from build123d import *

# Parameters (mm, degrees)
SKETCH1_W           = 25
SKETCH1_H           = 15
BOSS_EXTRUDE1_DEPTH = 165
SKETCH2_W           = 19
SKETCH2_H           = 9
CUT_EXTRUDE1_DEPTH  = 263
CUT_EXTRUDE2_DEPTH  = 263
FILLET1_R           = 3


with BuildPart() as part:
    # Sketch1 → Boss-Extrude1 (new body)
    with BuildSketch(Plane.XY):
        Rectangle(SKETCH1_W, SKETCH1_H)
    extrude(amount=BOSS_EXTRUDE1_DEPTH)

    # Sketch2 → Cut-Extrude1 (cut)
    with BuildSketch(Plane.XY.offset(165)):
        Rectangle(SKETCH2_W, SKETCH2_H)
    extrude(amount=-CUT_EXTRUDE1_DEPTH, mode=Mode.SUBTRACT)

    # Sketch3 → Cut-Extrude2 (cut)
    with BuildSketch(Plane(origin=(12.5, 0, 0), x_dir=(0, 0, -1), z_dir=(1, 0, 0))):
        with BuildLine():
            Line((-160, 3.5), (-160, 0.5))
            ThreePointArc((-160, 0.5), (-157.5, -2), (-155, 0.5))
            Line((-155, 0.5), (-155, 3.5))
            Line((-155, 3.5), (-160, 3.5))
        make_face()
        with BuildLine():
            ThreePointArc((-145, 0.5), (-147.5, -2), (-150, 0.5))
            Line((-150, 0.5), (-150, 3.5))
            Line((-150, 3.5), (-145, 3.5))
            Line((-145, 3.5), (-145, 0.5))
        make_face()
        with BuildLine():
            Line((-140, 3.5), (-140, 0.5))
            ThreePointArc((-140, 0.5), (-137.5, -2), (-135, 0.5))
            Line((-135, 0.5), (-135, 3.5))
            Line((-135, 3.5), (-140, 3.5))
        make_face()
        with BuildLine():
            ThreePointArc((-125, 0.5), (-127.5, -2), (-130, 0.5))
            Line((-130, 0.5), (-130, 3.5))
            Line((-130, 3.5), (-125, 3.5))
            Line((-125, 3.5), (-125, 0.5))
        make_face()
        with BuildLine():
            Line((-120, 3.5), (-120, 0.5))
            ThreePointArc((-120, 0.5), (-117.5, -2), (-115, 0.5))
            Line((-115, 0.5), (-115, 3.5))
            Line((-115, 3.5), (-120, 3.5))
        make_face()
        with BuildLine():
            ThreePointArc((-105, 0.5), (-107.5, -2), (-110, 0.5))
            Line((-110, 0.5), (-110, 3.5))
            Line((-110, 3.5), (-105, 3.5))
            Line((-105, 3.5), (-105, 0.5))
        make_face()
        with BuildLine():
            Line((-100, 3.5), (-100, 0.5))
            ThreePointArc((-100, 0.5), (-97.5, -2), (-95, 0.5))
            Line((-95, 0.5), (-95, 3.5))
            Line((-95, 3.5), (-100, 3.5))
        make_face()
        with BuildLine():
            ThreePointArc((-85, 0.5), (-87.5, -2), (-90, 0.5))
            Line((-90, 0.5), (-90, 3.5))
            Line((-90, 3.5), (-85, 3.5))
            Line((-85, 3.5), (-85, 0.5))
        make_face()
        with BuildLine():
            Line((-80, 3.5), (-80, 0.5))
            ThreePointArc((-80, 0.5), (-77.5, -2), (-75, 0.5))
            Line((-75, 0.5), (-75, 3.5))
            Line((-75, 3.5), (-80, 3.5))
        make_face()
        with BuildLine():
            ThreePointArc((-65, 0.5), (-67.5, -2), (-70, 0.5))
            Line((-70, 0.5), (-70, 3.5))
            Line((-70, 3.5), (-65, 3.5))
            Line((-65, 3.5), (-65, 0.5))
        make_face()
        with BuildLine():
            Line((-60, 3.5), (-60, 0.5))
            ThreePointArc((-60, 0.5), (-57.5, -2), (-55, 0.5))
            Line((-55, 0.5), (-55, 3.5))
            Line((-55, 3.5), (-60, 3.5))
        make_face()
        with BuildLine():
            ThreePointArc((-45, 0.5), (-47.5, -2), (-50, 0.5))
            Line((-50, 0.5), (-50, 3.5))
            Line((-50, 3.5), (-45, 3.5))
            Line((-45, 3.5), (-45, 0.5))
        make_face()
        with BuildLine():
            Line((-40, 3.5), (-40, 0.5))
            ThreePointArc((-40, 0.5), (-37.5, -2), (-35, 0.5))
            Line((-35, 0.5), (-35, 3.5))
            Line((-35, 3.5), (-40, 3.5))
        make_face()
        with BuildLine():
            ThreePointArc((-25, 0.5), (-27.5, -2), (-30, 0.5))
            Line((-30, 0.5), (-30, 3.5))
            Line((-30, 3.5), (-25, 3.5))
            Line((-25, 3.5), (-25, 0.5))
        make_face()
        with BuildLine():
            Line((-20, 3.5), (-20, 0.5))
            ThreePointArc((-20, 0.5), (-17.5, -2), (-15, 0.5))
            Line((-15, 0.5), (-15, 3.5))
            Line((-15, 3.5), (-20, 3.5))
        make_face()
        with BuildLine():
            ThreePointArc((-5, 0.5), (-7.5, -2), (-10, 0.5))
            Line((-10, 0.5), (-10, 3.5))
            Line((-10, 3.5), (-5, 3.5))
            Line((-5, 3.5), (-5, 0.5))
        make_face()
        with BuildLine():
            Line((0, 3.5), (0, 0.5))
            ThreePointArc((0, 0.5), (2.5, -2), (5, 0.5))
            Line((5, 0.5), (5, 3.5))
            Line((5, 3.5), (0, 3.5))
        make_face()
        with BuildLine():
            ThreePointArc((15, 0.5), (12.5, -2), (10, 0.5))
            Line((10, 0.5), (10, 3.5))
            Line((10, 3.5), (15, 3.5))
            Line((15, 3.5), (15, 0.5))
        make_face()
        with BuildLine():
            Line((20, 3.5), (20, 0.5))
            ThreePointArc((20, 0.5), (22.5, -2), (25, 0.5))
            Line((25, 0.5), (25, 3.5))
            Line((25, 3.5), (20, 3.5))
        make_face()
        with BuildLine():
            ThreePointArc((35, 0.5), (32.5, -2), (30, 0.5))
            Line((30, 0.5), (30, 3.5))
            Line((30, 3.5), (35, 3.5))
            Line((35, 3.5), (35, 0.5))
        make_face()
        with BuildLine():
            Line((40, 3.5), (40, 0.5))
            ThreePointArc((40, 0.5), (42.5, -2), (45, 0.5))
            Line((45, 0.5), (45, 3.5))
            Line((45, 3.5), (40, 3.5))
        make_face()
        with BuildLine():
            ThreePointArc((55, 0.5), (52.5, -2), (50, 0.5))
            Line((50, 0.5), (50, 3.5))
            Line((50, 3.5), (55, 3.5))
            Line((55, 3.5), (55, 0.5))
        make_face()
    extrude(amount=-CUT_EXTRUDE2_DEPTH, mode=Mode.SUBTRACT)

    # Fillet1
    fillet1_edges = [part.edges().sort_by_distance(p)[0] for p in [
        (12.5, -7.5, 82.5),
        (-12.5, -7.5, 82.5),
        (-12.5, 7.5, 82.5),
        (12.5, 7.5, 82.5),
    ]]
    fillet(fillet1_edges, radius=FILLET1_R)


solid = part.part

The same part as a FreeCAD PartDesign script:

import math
import FreeCAD as App
import Part
import Sketcher


def edges_at(feature, points):
    """Names of the edges that pass closest to the given points."""
    edges = feature.Shape.Edges
    near = lambda p: min(range(len(edges)), key=lambda i: edges[i].distToShape(Part.Vertex(*p))[0])
    return sorted({f"Edge{near(p) + 1}" for p in points})


def add_polygon(sketch, points):
    """Adds a closed chain of lines whose ends are joined by coincident constraints."""
    first, n = sketch.GeometryCount, len(points)
    for a, b in zip(points, points[1:] + points[:1]):
        sketch.addGeometry(Part.LineSegment(App.Vector(*a, 0), App.Vector(*b, 0)), False)
    for i in range(n):
        sketch.addConstraint(Sketcher.Constraint("Coincident", first + i, 2, first + (i + 1) % n, 1))

doc = App.newDocument("Part")
body = doc.addObject("PartDesign::Body", "Body")

sketch1 = body.newObject("Sketcher::SketchObject", "Sketch")
sketch1.AttachmentSupport = (doc.getObject("XY_Plane"), [""])
sketch1.MapMode = "FlatFace"
add_polygon(sketch1, [(-12, 8), (-12, -8), (12, -8), (12, 8)])
sketch1.addConstraint(Sketcher.Constraint("Vertical", 0))
sketch1.addConstraint(Sketcher.Constraint("Horizontal", 1))
sketch1.addConstraint(Sketcher.Constraint("Vertical", 2))
sketch1.addConstraint(Sketcher.Constraint("Horizontal", 3))
sketch1.addConstraint(Sketcher.Constraint("Symmetric", 0, 2, 2, 2, -1, 1))
sketch1.addConstraint(Sketcher.Constraint("DistanceX", 1, 1, 1, 2, 25.0))
sketch1.addConstraint(Sketcher.Constraint("DistanceY", 0, 2, 0, 1, 15.0))
pad1 = body.newObject("PartDesign::Pad", "Pad")
pad1.Profile = sketch1
pad1.Length = 165

sketch2 = body.newObject("Sketcher::SketchObject", "Sketch001")
sketch2.AttachmentSupport = (doc.getObject("XY_Plane"), [""])
sketch2.MapMode = "FlatFace"
sketch2.AttachmentOffset = App.Placement(App.Vector(0, 0, 165), App.Rotation())
add_polygon(sketch2, [(-10, 4), (-10, -4), (10, -4), (10, 4)])
sketch2.addConstraint(Sketcher.Constraint("Vertical", 0))
sketch2.addConstraint(Sketcher.Constraint("Horizontal", 1))
sketch2.addConstraint(Sketcher.Constraint("Vertical", 2))
sketch2.addConstraint(Sketcher.Constraint("Horizontal", 3))
sketch2.addConstraint(Sketcher.Constraint("Symmetric", 0, 2, 2, 2, -1, 1))
sketch2.addConstraint(Sketcher.Constraint("DistanceX", 1, 1, 1, 2, 19.0))
sketch2.addConstraint(Sketcher.Constraint("DistanceY", 0, 2, 0, 1, 9.0))
pocket1 = body.newObject("PartDesign::Pocket", "Pocket")
pocket1.Profile = sketch2
pocket1.Length = 263

sketch3 = body.newObject("Sketcher::SketchObject", "Sketch002")
sketch3.AttachmentSupport = (doc.getObject("YZ_Plane"), [""])
sketch3.MapMode = "FlatFace"
sketch3.AttachmentOffset = App.Placement(App.Vector(0, 0, 12.5), App.Rotation())
sketch3.addGeometry(Part.LineSegment(App.Vector(3.5, 160, 0), App.Vector(0.5, 160, 0)), False)
sketch3.addGeometry(Part.ArcOfCircle(Part.Circle(App.Vector(0.5, 157.5, 0), App.Vector(0, 0, 1), 2.5), math.radians(90), math.radians(270)), False)
sketch3.addGeometry(Part.LineSegment(App.Vector(0.5, 155, 0), App.Vector(3.5, 155, 0)), False)
sketch3.addGeometry(Part.LineSegment(App.Vector(3.5, 155, 0), App.Vector(3.5, 160, 0)), False)
sketch3.addGeometry(Part.ArcOfCircle(Part.Circle(App.Vector(0.5, 147.5, 0), App.Vector(0, 0, 1), 2.5), math.radians(90), math.radians(270)), False)
sketch3.addGeometry(Part.LineSegment(App.Vector(0.5, 145, 0), App.Vector(3.5, 145, 0)), False)
sketch3.addGeometry(Part.LineSegment(App.Vector(3.5, 145, 0), App.Vector(3.5, 150, 0)), False)
sketch3.addGeometry(Part.LineSegment(App.Vector(3.5, 150, 0), App.Vector(0.5, 150, 0)), False)
sketch3.addGeometry(Part.LineSegment(App.Vector(3.5, 140, 0), App.Vector(0.5, 140, 0)), False)
sketch3.addGeometry(Part.ArcOfCircle(Part.Circle(App.Vector(0.5, 137.5, 0), App.Vector(0, 0, 1), 2.5), math.radians(90), math.radians(270)), False)
sketch3.addGeometry(Part.LineSegment(App.Vector(0.5, 135, 0), App.Vector(3.5, 135, 0)), False)
sketch3.addGeometry(Part.LineSegment(App.Vector(3.5, 135, 0), App.Vector(3.5, 140, 0)), False)
sketch3.addGeometry(Part.ArcOfCircle(Part.Circle(App.Vector(0.5, 127.5, 0), App.Vector(0, 0, 1), 2.5), math.radians(90), math.radians(270)), False)
sketch3.addGeometry(Part.LineSegment(App.Vector(0.5, 125, 0), App.Vector(3.5, 125, 0)), False)
sketch3.addGeometry(Part.LineSegment(App.Vector(3.5, 125, 0), App.Vector(3.5, 130, 0)), False)
sketch3.addGeometry(Part.LineSegment(App.Vector(3.5, 130, 0), App.Vector(0.5, 130, 0)), False)
sketch3.addGeometry(Part.LineSegment(App.Vector(3.5, 120, 0), App.Vector(0.5, 120, 0)), False)
sketch3.addGeometry(Part.ArcOfCircle(Part.Circle(App.Vector(0.5, 117.5, 0), App.Vector(0, 0, 1), 2.5), math.radians(90), math.radians(270)), False)
sketch3.addGeometry(Part.LineSegment(App.Vector(0.5, 115, 0), App.Vector(3.5, 115, 0)), False)
sketch3.addGeometry(Part.LineSegment(App.Vector(3.5, 115, 0), App.Vector(3.5, 120, 0)), False)
sketch3.addGeometry(Part.ArcOfCircle(Part.Circle(App.Vector(0.5, 107.5, 0), App.Vector(0, 0, 1), 2.5), math.radians(90), math.radians(270)), False)
sketch3.addGeometry(Part.LineSegment(App.Vector(0.5, 105, 0), App.Vector(3.5, 105, 0)), False)
sketch3.addGeometry(Part.LineSegment(App.Vector(3.5, 105, 0), App.Vector(3.5, 110, 0)), False)
sketch3.addGeometry(Part.LineSegment(App.Vector(3.5, 110, 0), App.Vector(0.5, 110, 0)), False)
sketch3.addGeometry(Part.LineSegment(App.Vector(3.5, 100, 0), App.Vector(0.5, 100, 0)), False)
sketch3.addGeometry(Part.ArcOfCircle(Part.Circle(App.Vector(0.5, 97.5, 0), App.Vector(0, 0, 1), 2.5), math.radians(90), math.radians(270)), False)
sketch3.addGeometry(Part.LineSegment(App.Vector(0.5, 95, 0), App.Vector(3.5, 95, 0)), False)
sketch3.addGeometry(Part.LineSegment(App.Vector(3.5, 95, 0), App.Vector(3.5, 100, 0)), False)
sketch3.addGeometry(Part.ArcOfCircle(Part.Circle(App.Vector(0.5, 87.5, 0), App.Vector(0, 0, 1), 2.5), math.radians(90), math.radians(270)), False)
sketch3.addGeometry(Part.LineSegment(App.Vector(0.5, 85, 0), App.Vector(3.5, 85, 0)), False)
sketch3.addGeometry(Part.LineSegment(App.Vector(3.5, 85, 0), App.Vector(3.5, 90, 0)), False)
sketch3.addGeometry(Part.LineSegment(App.Vector(3.5, 90, 0), App.Vector(0.5, 90, 0)), False)
sketch3.addGeometry(Part.LineSegment(App.Vector(3.5, 80, 0), App.Vector(0.5, 80, 0)), False)
sketch3.addGeometry(Part.ArcOfCircle(Part.Circle(App.Vector(0.5, 77.5, 0), App.Vector(0, 0, 1), 2.5), math.radians(90), math.radians(270)), False)
sketch3.addGeometry(Part.LineSegment(App.Vector(0.5, 75, 0), App.Vector(3.5, 75, 0)), False)
sketch3.addGeometry(Part.LineSegment(App.Vector(3.5, 75, 0), App.Vector(3.5, 80, 0)), False)
sketch3.addGeometry(Part.ArcOfCircle(Part.Circle(App.Vector(0.5, 67.5, 0), App.Vector(0, 0, 1), 2.5), math.radians(90), math.radians(270)), False)
sketch3.addGeometry(Part.LineSegment(App.Vector(0.5, 65, 0), App.Vector(3.5, 65, 0)), False)
sketch3.addGeometry(Part.LineSegment(App.Vector(3.5, 65, 0), App.Vector(3.5, 70, 0)), False)
sketch3.addGeometry(Part.LineSegment(App.Vector(3.5, 70, 0), App.Vector(0.5, 70, 0)), False)
sketch3.addGeometry(Part.LineSegment(App.Vector(3.5, 60, 0), App.Vector(0.5, 60, 0)), False)
sketch3.addGeometry(Part.ArcOfCircle(Part.Circle(App.Vector(0.5, 57.5, 0), App.Vector(0, 0, 1), 2.5), math.radians(90), math.radians(270)), False)
sketch3.addGeometry(Part.LineSegment(App.Vector(0.5, 55, 0), App.Vector(3.5, 55, 0)), False)
sketch3.addGeometry(Part.LineSegment(App.Vector(3.5, 55, 0), App.Vector(3.5, 60, 0)), False)
sketch3.addGeometry(Part.ArcOfCircle(Part.Circle(App.Vector(0.5, 47.5, 0), App.Vector(0, 0, 1), 2.5), math.radians(90), math.radians(270)), False)
sketch3.addGeometry(Part.LineSegment(App.Vector(0.5, 45, 0), App.Vector(3.5, 45, 0)), False)
sketch3.addGeometry(Part.LineSegment(App.Vector(3.5, 45, 0), App.Vector(3.5, 50, 0)), False)
sketch3.addGeometry(Part.LineSegment(App.Vector(3.5, 50, 0), App.Vector(0.5, 50, 0)), False)
sketch3.addGeometry(Part.LineSegment(App.Vector(3.5, 40, 0), App.Vector(0.5, 40, 0)), False)
sketch3.addGeometry(Part.ArcOfCircle(Part.Circle(App.Vector(0.5, 37.5, 0), App.Vector(0, 0, 1), 2.5), math.radians(90), math.radians(270)), False)
sketch3.addGeometry(Part.LineSegment(App.Vector(0.5, 35, 0), App.Vector(3.5, 35, 0)), False)
sketch3.addGeometry(Part.LineSegment(App.Vector(3.5, 35, 0), App.Vector(3.5, 40, 0)), False)
sketch3.addGeometry(Part.ArcOfCircle(Part.Circle(App.Vector(0.5, 27.5, 0), App.Vector(0, 0, 1), 2.5), math.radians(90), math.radians(270)), False)
sketch3.addGeometry(Part.LineSegment(App.Vector(0.5, 25, 0), App.Vector(3.5, 25, 0)), False)
sketch3.addGeometry(Part.LineSegment(App.Vector(3.5, 25, 0), App.Vector(3.5, 30, 0)), False)
sketch3.addGeometry(Part.LineSegment(App.Vector(3.5, 30, 0), App.Vector(0.5, 30, 0)), False)
sketch3.addGeometry(Part.LineSegment(App.Vector(3.5, 20, 0), App.Vector(0.5, 20, 0)), False)
sketch3.addGeometry(Part.ArcOfCircle(Part.Circle(App.Vector(0.5, 17.5, 0), App.Vector(0, 0, 1), 2.5), math.radians(90), math.radians(270)), False)
sketch3.addGeometry(Part.LineSegment(App.Vector(0.5, 15, 0), App.Vector(3.5, 15, 0)), False)
sketch3.addGeometry(Part.LineSegment(App.Vector(3.5, 15, 0), App.Vector(3.5, 20, 0)), False)
sketch3.addGeometry(Part.ArcOfCircle(Part.Circle(App.Vector(0.5, 7.5, 0), App.Vector(0, 0, 1), 2.5), math.radians(90), math.radians(270)), False)
sketch3.addGeometry(Part.LineSegment(App.Vector(0.5, 5, 0), App.Vector(3.5, 5, 0)), False)
sketch3.addGeometry(Part.LineSegment(App.Vector(3.5, 5, 0), App.Vector(3.5, 10, 0)), False)
sketch3.addGeometry(Part.LineSegment(App.Vector(3.5, 10, 0), App.Vector(0.5, 10, 0)), False)
sketch3.addGeometry(Part.LineSegment(App.Vector(3.5, 0, 0), App.Vector(0.5, 0, 0)), False)
sketch3.addGeometry(Part.ArcOfCircle(Part.Circle(App.Vector(0.5, -2.5, 0), App.Vector(0, 0, 1), 2.5), math.radians(90), math.radians(270)), False)
sketch3.addGeometry(Part.LineSegment(App.Vector(0.5, -5, 0), App.Vector(3.5, -5, 0)), False)
sketch3.addGeometry(Part.LineSegment(App.Vector(3.5, -5, 0), App.Vector(3.5, 0, 0)), False)
sketch3.addGeometry(Part.ArcOfCircle(Part.Circle(App.Vector(0.5, -12.5, 0), App.Vector(0, 0, 1), 2.5), math.radians(90), math.radians(270)), False)
sketch3.addGeometry(Part.LineSegment(App.Vector(0.5, -15, 0), App.Vector(3.5, -15, 0)), False)
sketch3.addGeometry(Part.LineSegment(App.Vector(3.5, -15, 0), App.Vector(3.5, -10, 0)), False)
sketch3.addGeometry(Part.LineSegment(App.Vector(3.5, -10, 0), App.Vector(0.5, -10, 0)), False)
sketch3.addGeometry(Part.LineSegment(App.Vector(3.5, -20, 0), App.Vector(0.5, -20, 0)), False)
sketch3.addGeometry(Part.ArcOfCircle(Part.Circle(App.Vector(0.5, -22.5, 0), App.Vector(0, 0, 1), 2.5), math.radians(90), math.radians(270)), False)
sketch3.addGeometry(Part.LineSegment(App.Vector(0.5, -25, 0), App.Vector(3.5, -25, 0)), False)
sketch3.addGeometry(Part.LineSegment(App.Vector(3.5, -25, 0), App.Vector(3.5, -20, 0)), False)
sketch3.addGeometry(Part.ArcOfCircle(Part.Circle(App.Vector(0.5, -32.5, 0), App.Vector(0, 0, 1), 2.5), math.radians(90), math.radians(270)), False)
sketch3.addGeometry(Part.LineSegment(App.Vector(0.5, -35, 0), App.Vector(3.5, -35, 0)), False)
sketch3.addGeometry(Part.LineSegment(App.Vector(3.5, -35, 0), App.Vector(3.5, -30, 0)), False)
sketch3.addGeometry(Part.LineSegment(App.Vector(3.5, -30, 0), App.Vector(0.5, -30, 0)), False)
sketch3.addGeometry(Part.LineSegment(App.Vector(3.5, -40, 0), App.Vector(0.5, -40, 0)), False)
sketch3.addGeometry(Part.ArcOfCircle(Part.Circle(App.Vector(0.5, -42.5, 0), App.Vector(0, 0, 1), 2.5), math.radians(90), math.radians(270)), False)
sketch3.addGeometry(Part.LineSegment(App.Vector(0.5, -45, 0), App.Vector(3.5, -45, 0)), False)
sketch3.addGeometry(Part.LineSegment(App.Vector(3.5, -45, 0), App.Vector(3.5, -40, 0)), False)
sketch3.addGeometry(Part.ArcOfCircle(Part.Circle(App.Vector(0.5, -52.5, 0), App.Vector(0, 0, 1), 2.5), math.radians(90), math.radians(270)), False)
sketch3.addGeometry(Part.LineSegment(App.Vector(0.5, -55, 0), App.Vector(3.5, -55, 0)), False)
sketch3.addGeometry(Part.LineSegment(App.Vector(3.5, -55, 0), App.Vector(3.5, -50, 0)), False)
sketch3.addGeometry(Part.LineSegment(App.Vector(3.5, -50, 0), App.Vector(0.5, -50, 0)), False)
sketch3.addConstraint(Sketcher.Constraint("Tangent", 0, 2, 1, 1))
sketch3.addConstraint(Sketcher.Constraint("Tangent", 1, 2, 2, 1))
sketch3.addConstraint(Sketcher.Constraint("Coincident", 2, 2, 3, 1))
sketch3.addConstraint(Sketcher.Constraint("Coincident", 3, 2, 0, 1))
sketch3.addConstraint(Sketcher.Constraint("Tangent", 4, 2, 5, 1))
sketch3.addConstraint(Sketcher.Constraint("Coincident", 5, 2, 6, 1))
sketch3.addConstraint(Sketcher.Constraint("Coincident", 6, 2, 7, 1))
sketch3.addConstraint(Sketcher.Constraint("Tangent", 7, 2, 4, 1))
sketch3.addConstraint(Sketcher.Constraint("Tangent", 8, 2, 9, 1))
sketch3.addConstraint(Sketcher.Constraint("Tangent", 9, 2, 10, 1))
sketch3.addConstraint(Sketcher.Constraint("Coincident", 10, 2, 11, 1))
sketch3.addConstraint(Sketcher.Constraint("Coincident", 11, 2, 8, 1))
sketch3.addConstraint(Sketcher.Constraint("Tangent", 12, 2, 13, 1))
sketch3.addConstraint(Sketcher.Constraint("Coincident", 13, 2, 14, 1))
sketch3.addConstraint(Sketcher.Constraint("Coincident", 14, 2, 15, 1))
sketch3.addConstraint(Sketcher.Constraint("Tangent", 15, 2, 12, 1))
sketch3.addConstraint(Sketcher.Constraint("Tangent", 16, 2, 17, 1))
sketch3.addConstraint(Sketcher.Constraint("Tangent", 17, 2, 18, 1))
sketch3.addConstraint(Sketcher.Constraint("Coincident", 18, 2, 19, 1))
sketch3.addConstraint(Sketcher.Constraint("Coincident", 19, 2, 16, 1))
sketch3.addConstraint(Sketcher.Constraint("Tangent", 20, 2, 21, 1))
sketch3.addConstraint(Sketcher.Constraint("Coincident", 21, 2, 22, 1))
sketch3.addConstraint(Sketcher.Constraint("Coincident", 22, 2, 23, 1))
sketch3.addConstraint(Sketcher.Constraint("Tangent", 23, 2, 20, 1))
sketch3.addConstraint(Sketcher.Constraint("Tangent", 24, 2, 25, 1))
sketch3.addConstraint(Sketcher.Constraint("Tangent", 25, 2, 26, 1))
sketch3.addConstraint(Sketcher.Constraint("Coincident", 26, 2, 27, 1))
sketch3.addConstraint(Sketcher.Constraint("Coincident", 27, 2, 24, 1))
sketch3.addConstraint(Sketcher.Constraint("Tangent", 28, 2, 29, 1))
sketch3.addConstraint(Sketcher.Constraint("Coincident", 29, 2, 30, 1))
sketch3.addConstraint(Sketcher.Constraint("Coincident", 30, 2, 31, 1))
sketch3.addConstraint(Sketcher.Constraint("Tangent", 31, 2, 28, 1))
sketch3.addConstraint(Sketcher.Constraint("Tangent", 32, 2, 33, 1))
sketch3.addConstraint(Sketcher.Constraint("Tangent", 33, 2, 34, 1))
sketch3.addConstraint(Sketcher.Constraint("Coincident", 34, 2, 35, 1))
sketch3.addConstraint(Sketcher.Constraint("Coincident", 35, 2, 32, 1))
sketch3.addConstraint(Sketcher.Constraint("Tangent", 36, 2, 37, 1))
sketch3.addConstraint(Sketcher.Constraint("Coincident", 37, 2, 38, 1))
sketch3.addConstraint(Sketcher.Constraint("Coincident", 38, 2, 39, 1))
sketch3.addConstraint(Sketcher.Constraint("Tangent", 39, 2, 36, 1))
sketch3.addConstraint(Sketcher.Constraint("Tangent", 40, 2, 41, 1))
sketch3.addConstraint(Sketcher.Constraint("Tangent", 41, 2, 42, 1))
sketch3.addConstraint(Sketcher.Constraint("Coincident", 42, 2, 43, 1))
sketch3.addConstraint(Sketcher.Constraint("Coincident", 43, 2, 40, 1))
sketch3.addConstraint(Sketcher.Constraint("Tangent", 44, 2, 45, 1))
sketch3.addConstraint(Sketcher.Constraint("Coincident", 45, 2, 46, 1))
sketch3.addConstraint(Sketcher.Constraint("Coincident", 46, 2, 47, 1))
sketch3.addConstraint(Sketcher.Constraint("Tangent", 47, 2, 44, 1))
sketch3.addConstraint(Sketcher.Constraint("Tangent", 48, 2, 49, 1))
sketch3.addConstraint(Sketcher.Constraint("Tangent", 49, 2, 50, 1))
sketch3.addConstraint(Sketcher.Constraint("Coincident", 50, 2, 51, 1))
sketch3.addConstraint(Sketcher.Constraint("Coincident", 51, 2, 48, 1))
sketch3.addConstraint(Sketcher.Constraint("Tangent", 52, 2, 53, 1))
sketch3.addConstraint(Sketcher.Constraint("Coincident", 53, 2, 54, 1))
sketch3.addConstraint(Sketcher.Constraint("Coincident", 54, 2, 55, 1))
sketch3.addConstraint(Sketcher.Constraint("Tangent", 55, 2, 52, 1))
sketch3.addConstraint(Sketcher.Constraint("Tangent", 56, 2, 57, 1))
sketch3.addConstraint(Sketcher.Constraint("Tangent", 57, 2, 58, 1))
sketch3.addConstraint(Sketcher.Constraint("Coincident", 58, 2, 59, 1))
sketch3.addConstraint(Sketcher.Constraint("Coincident", 59, 2, 56, 1))
sketch3.addConstraint(Sketcher.Constraint("Tangent", 60, 2, 61, 1))
sketch3.addConstraint(Sketcher.Constraint("Coincident", 61, 2, 62, 1))
sketch3.addConstraint(Sketcher.Constraint("Coincident", 62, 2, 63, 1))
sketch3.addConstraint(Sketcher.Constraint("Tangent", 63, 2, 60, 1))
sketch3.addConstraint(Sketcher.Constraint("Tangent", 64, 2, 65, 1))
sketch3.addConstraint(Sketcher.Constraint("Tangent", 65, 2, 66, 1))
sketch3.addConstraint(Sketcher.Constraint("Coincident", 66, 2, 67, 1))
sketch3.addConstraint(Sketcher.Constraint("Coincident", 67, 2, 64, 1))
sketch3.addConstraint(Sketcher.Constraint("Tangent", 68, 2, 69, 1))
sketch3.addConstraint(Sketcher.Constraint("Coincident", 69, 2, 70, 1))
sketch3.addConstraint(Sketcher.Constraint("Coincident", 70, 2, 71, 1))
sketch3.addConstraint(Sketcher.Constraint("Tangent", 71, 2, 68, 1))
sketch3.addConstraint(Sketcher.Constraint("Tangent", 72, 2, 73, 1))
sketch3.addConstraint(Sketcher.Constraint("Tangent", 73, 2, 74, 1))
sketch3.addConstraint(Sketcher.Constraint("Coincident", 74, 2, 75, 1))
sketch3.addConstraint(Sketcher.Constraint("Coincident", 75, 2, 72, 1))
sketch3.addConstraint(Sketcher.Constraint("Tangent", 76, 2, 77, 1))
sketch3.addConstraint(Sketcher.Constraint("Coincident", 77, 2, 78, 1))
sketch3.addConstraint(Sketcher.Constraint("Coincident", 78, 2, 79, 1))
sketch3.addConstraint(Sketcher.Constraint("Tangent", 79, 2, 76, 1))
sketch3.addConstraint(Sketcher.Constraint("Tangent", 80, 2, 81, 1))
sketch3.addConstraint(Sketcher.Constraint("Tangent", 81, 2, 82, 1))
sketch3.addConstraint(Sketcher.Constraint("Coincident", 82, 2, 83, 1))
sketch3.addConstraint(Sketcher.Constraint("Coincident", 83, 2, 80, 1))
sketch3.addConstraint(Sketcher.Constraint("Tangent", 84, 2, 85, 1))
sketch3.addConstraint(Sketcher.Constraint("Coincident", 85, 2, 86, 1))
sketch3.addConstraint(Sketcher.Constraint("Coincident", 86, 2, 87, 1))
sketch3.addConstraint(Sketcher.Constraint("Tangent", 87, 2, 84, 1))
sketch3.addConstraint(Sketcher.Constraint("Horizontal", 0))
sketch3.addConstraint(Sketcher.Constraint("Horizontal", 2))
sketch3.addConstraint(Sketcher.Constraint("Vertical", 3))
sketch3.addConstraint(Sketcher.Constraint("Horizontal", 5))
sketch3.addConstraint(Sketcher.Constraint("Vertical", 6))
sketch3.addConstraint(Sketcher.Constraint("Horizontal", 7))
sketch3.addConstraint(Sketcher.Constraint("Horizontal", 8))
sketch3.addConstraint(Sketcher.Constraint("Horizontal", 10))
sketch3.addConstraint(Sketcher.Constraint("Vertical", 11))
sketch3.addConstraint(Sketcher.Constraint("Horizontal", 13))
sketch3.addConstraint(Sketcher.Constraint("Vertical", 14))
sketch3.addConstraint(Sketcher.Constraint("Horizontal", 15))
sketch3.addConstraint(Sketcher.Constraint("Horizontal", 16))
sketch3.addConstraint(Sketcher.Constraint("Horizontal", 18))
sketch3.addConstraint(Sketcher.Constraint("Vertical", 19))
sketch3.addConstraint(Sketcher.Constraint("Horizontal", 21))
sketch3.addConstraint(Sketcher.Constraint("Vertical", 22))
sketch3.addConstraint(Sketcher.Constraint("Horizontal", 23))
sketch3.addConstraint(Sketcher.Constraint("Horizontal", 24))
sketch3.addConstraint(Sketcher.Constraint("Horizontal", 26))
sketch3.addConstraint(Sketcher.Constraint("Vertical", 27))
sketch3.addConstraint(Sketcher.Constraint("Horizontal", 29))
sketch3.addConstraint(Sketcher.Constraint("Vertical", 30))
sketch3.addConstraint(Sketcher.Constraint("Horizontal", 31))
sketch3.addConstraint(Sketcher.Constraint("Horizontal", 32))
sketch3.addConstraint(Sketcher.Constraint("Horizontal", 34))
sketch3.addConstraint(Sketcher.Constraint("Vertical", 35))
sketch3.addConstraint(Sketcher.Constraint("Horizontal", 37))
sketch3.addConstraint(Sketcher.Constraint("Vertical", 38))
sketch3.addConstraint(Sketcher.Constraint("Horizontal", 39))
sketch3.addConstraint(Sketcher.Constraint("Horizontal", 40))
sketch3.addConstraint(Sketcher.Constraint("Horizontal", 42))
sketch3.addConstraint(Sketcher.Constraint("Vertical", 43))
sketch3.addConstraint(Sketcher.Constraint("Horizontal", 45))
sketch3.addConstraint(Sketcher.Constraint("Vertical", 46))
sketch3.addConstraint(Sketcher.Constraint("Horizontal", 47))
sketch3.addConstraint(Sketcher.Constraint("Horizontal", 48))
sketch3.addConstraint(Sketcher.Constraint("Horizontal", 50))
sketch3.addConstraint(Sketcher.Constraint("Vertical", 51))
sketch3.addConstraint(Sketcher.Constraint("Horizontal", 53))
sketch3.addConstraint(Sketcher.Constraint("Vertical", 54))
sketch3.addConstraint(Sketcher.Constraint("Horizontal", 55))
sketch3.addConstraint(Sketcher.Constraint("Horizontal", 56))
sketch3.addConstraint(Sketcher.Constraint("Horizontal", 58))
sketch3.addConstraint(Sketcher.Constraint("Vertical", 59))
sketch3.addConstraint(Sketcher.Constraint("Horizontal", 61))
sketch3.addConstraint(Sketcher.Constraint("Vertical", 62))
sketch3.addConstraint(Sketcher.Constraint("Horizontal", 63))
sketch3.addConstraint(Sketcher.Constraint("Horizontal", 64))
sketch3.addConstraint(Sketcher.Constraint("Horizontal", 66))
sketch3.addConstraint(Sketcher.Constraint("Vertical", 67))
sketch3.addConstraint(Sketcher.Constraint("Horizontal", 69))
sketch3.addConstraint(Sketcher.Constraint("Vertical", 70))
sketch3.addConstraint(Sketcher.Constraint("Horizontal", 71))
sketch3.addConstraint(Sketcher.Constraint("Horizontal", 72))
sketch3.addConstraint(Sketcher.Constraint("Horizontal", 74))
sketch3.addConstraint(Sketcher.Constraint("Vertical", 75))
sketch3.addConstraint(Sketcher.Constraint("Horizontal", 77))
sketch3.addConstraint(Sketcher.Constraint("Vertical", 78))
sketch3.addConstraint(Sketcher.Constraint("Horizontal", 79))
sketch3.addConstraint(Sketcher.Constraint("Horizontal", 80))
sketch3.addConstraint(Sketcher.Constraint("Horizontal", 82))
sketch3.addConstraint(Sketcher.Constraint("Vertical", 83))
sketch3.addConstraint(Sketcher.Constraint("Horizontal", 85))
sketch3.addConstraint(Sketcher.Constraint("Vertical", 86))
sketch3.addConstraint(Sketcher.Constraint("Horizontal", 87))
sketch3.addConstraint(Sketcher.Constraint("Equal", 1, 4))
sketch3.addConstraint(Sketcher.Constraint("Equal", 4, 9))
sketch3.addConstraint(Sketcher.Constraint("Equal", 9, 12))
sketch3.addConstraint(Sketcher.Constraint("Equal", 12, 17))
sketch3.addConstraint(Sketcher.Constraint("Equal", 17, 20))
sketch3.addConstraint(Sketcher.Constraint("Equal", 20, 25))
sketch3.addConstraint(Sketcher.Constraint("Equal", 25, 28))
sketch3.addConstraint(Sketcher.Constraint("Equal", 28, 33))
sketch3.addConstraint(Sketcher.Constraint("Equal", 33, 36))
sketch3.addConstraint(Sketcher.Constraint("Equal", 36, 41))
sketch3.addConstraint(Sketcher.Constraint("Equal", 41, 44))
sketch3.addConstraint(Sketcher.Constraint("Equal", 44, 49))
sketch3.addConstraint(Sketcher.Constraint("Equal", 49, 52))
sketch3.addConstraint(Sketcher.Constraint("Equal", 52, 57))
sketch3.addConstraint(Sketcher.Constraint("Equal", 57, 60))
sketch3.addConstraint(Sketcher.Constraint("Equal", 60, 65))
sketch3.addConstraint(Sketcher.Constraint("Equal", 65, 68))
sketch3.addConstraint(Sketcher.Constraint("Equal", 68, 73))
sketch3.addConstraint(Sketcher.Constraint("Equal", 73, 76))
sketch3.addConstraint(Sketcher.Constraint("Equal", 76, 81))
sketch3.addConstraint(Sketcher.Constraint("Equal", 81, 84))
sketch3.addConstraint(Sketcher.Constraint("Symmetric", 60, 2, 65, 2, -1))
sketch3.addConstraint(Sketcher.Constraint("Symmetric", 57, 2, 68, 2, -1))
sketch3.addConstraint(Sketcher.Constraint("Symmetric", 62, 2, 70, 2, -1))
sketch3.addConstraint(Sketcher.Constraint("Symmetric", 56, 2, 72, 2, -1))
sketch3.addConstraint(Sketcher.Constraint("Symmetric", 52, 2, 73, 2, -1))
sketch3.addConstraint(Sketcher.Constraint("Symmetric", 49, 2, 76, 2, -1))
sketch3.addConstraint(Sketcher.Constraint("Symmetric", 54, 2, 78, 2, -1))
sketch3.addConstraint(Sketcher.Constraint("Symmetric", 48, 2, 80, 2, -1))
sketch3.addConstraint(Sketcher.Constraint("Symmetric", 44, 2, 81, 2, -1))
sketch3.addConstraint(Sketcher.Constraint("Symmetric", 41, 2, 84, 2, -1))
sketch3.addConstraint(Sketcher.Constraint("Symmetric", 46, 2, 86, 2, -1))
sketch3.addConstraint(Sketcher.Constraint("PointOnObject", 64, 2, -1))
sketch3.addConstraint(Sketcher.Constraint("Vertical", 1, 3, 4, 3))
sketch3.addConstraint(Sketcher.Constraint("Vertical", 4, 3, 9, 3))
sketch3.addConstraint(Sketcher.Constraint("Vertical", 9, 3, 12, 3))
sketch3.addConstraint(Sketcher.Constraint("Vertical", 12, 3, 17, 3))
sketch3.addConstraint(Sketcher.Constraint("Vertical", 17, 3, 20, 3))
sketch3.addConstraint(Sketcher.Constraint("Vertical", 20, 3, 25, 3))
sketch3.addConstraint(Sketcher.Constraint("Vertical", 25, 3, 28, 3))
sketch3.addConstraint(Sketcher.Constraint("Vertical", 28, 3, 33, 3))
sketch3.addConstraint(Sketcher.Constraint("Vertical", 33, 3, 36, 3))
sketch3.addConstraint(Sketcher.Constraint("Vertical", 36, 3, 41, 3))
sketch3.addConstraint(Sketcher.Constraint("Vertical", 41, 3, 44, 3))
sketch3.addConstraint(Sketcher.Constraint("Vertical", 49, 3, 52, 3))
sketch3.addConstraint(Sketcher.Constraint("Vertical", 57, 3, 60, 3))
sketch3.addConstraint(Sketcher.Constraint("Vertical", 3, 2, 5, 2))
sketch3.addConstraint(Sketcher.Constraint("Vertical", 6, 2, 10, 2))
sketch3.addConstraint(Sketcher.Constraint("Vertical", 11, 2, 13, 2))
sketch3.addConstraint(Sketcher.Constraint("Vertical", 14, 2, 18, 2))
sketch3.addConstraint(Sketcher.Constraint("Vertical", 19, 2, 21, 2))
sketch3.addConstraint(Sketcher.Constraint("Vertical", 22, 2, 26, 2))
sketch3.addConstraint(Sketcher.Constraint("Vertical", 27, 2, 29, 2))
sketch3.addConstraint(Sketcher.Constraint("Vertical", 30, 2, 34, 2))
sketch3.addConstraint(Sketcher.Constraint("Vertical", 35, 2, 37, 2))
sketch3.addConstraint(Sketcher.Constraint("Vertical", 38, 2, 42, 2))
sketch3.addConstraint(Sketcher.Constraint("Vertical", 43, 2, 45, 2))
sketch3.addConstraint(Sketcher.Constraint("Vertical", 46, 2, 50, 2))
sketch3.addConstraint(Sketcher.Constraint("Vertical", 51, 2, 53, 2))
sketch3.addConstraint(Sketcher.Constraint("Vertical", 54, 2, 58, 2))
sketch3.addConstraint(Sketcher.Constraint("Vertical", 59, 2, 61, 2))
sketch3.addConstraint(Sketcher.Constraint("Vertical", 62, 2, 66, 2))
sketch3.addConstraint(Sketcher.Constraint("Vertical", 70, 2, 74, 2))
sketch3.addConstraint(Sketcher.Constraint("Vertical", 78, 2, 82, 2))
sketch3.addConstraint(Sketcher.Constraint("Radius", 1, 2.5))
sketch3.addConstraint(Sketcher.Constraint("DistanceX", 0, 2, 0, 1, 3.0))
sketch3.addConstraint(Sketcher.Constraint("DistanceY", -1, 1, 0, 2, 160.0))
sketch3.addConstraint(Sketcher.Constraint("DistanceY", -1, 1, 4, 2, 145.0))
sketch3.addConstraint(Sketcher.Constraint("DistanceY", -1, 1, 8, 2, 140.0))
sketch3.addConstraint(Sketcher.Constraint("DistanceY", -1, 1, 12, 2, 125.0))
sketch3.addConstraint(Sketcher.Constraint("DistanceY", -1, 1, 16, 2, 120.0))
sketch3.addConstraint(Sketcher.Constraint("DistanceY", -1, 1, 20, 2, 105.0))
sketch3.addConstraint(Sketcher.Constraint("DistanceY", -1, 1, 24, 2, 100.0))
sketch3.addConstraint(Sketcher.Constraint("DistanceY", -1, 1, 28, 2, 85.0))
sketch3.addConstraint(Sketcher.Constraint("DistanceY", -1, 1, 32, 2, 80.0))
sketch3.addConstraint(Sketcher.Constraint("DistanceY", -1, 1, 36, 2, 65.0))
sketch3.addConstraint(Sketcher.Constraint("DistanceX", -1, 1, 1, 3, 0.5))
pocket2 = body.newObject("PartDesign::Pocket", "Pocket001")
pocket2.Profile = sketch3
pocket2.Length = 263
doc.recompute()

fillet = body.newObject("PartDesign::Fillet", "Fillet")
fillet.Base = (pocket2, edges_at(pocket2, [
    (12.5, -7.5, 82.5),
    (-12.5, -7.5, 82.5),
    (-12.5, 7.5, 82.5),
    (12.5, 7.5, 82.5),
]))
fillet.Radius = 3

doc.recompute()
